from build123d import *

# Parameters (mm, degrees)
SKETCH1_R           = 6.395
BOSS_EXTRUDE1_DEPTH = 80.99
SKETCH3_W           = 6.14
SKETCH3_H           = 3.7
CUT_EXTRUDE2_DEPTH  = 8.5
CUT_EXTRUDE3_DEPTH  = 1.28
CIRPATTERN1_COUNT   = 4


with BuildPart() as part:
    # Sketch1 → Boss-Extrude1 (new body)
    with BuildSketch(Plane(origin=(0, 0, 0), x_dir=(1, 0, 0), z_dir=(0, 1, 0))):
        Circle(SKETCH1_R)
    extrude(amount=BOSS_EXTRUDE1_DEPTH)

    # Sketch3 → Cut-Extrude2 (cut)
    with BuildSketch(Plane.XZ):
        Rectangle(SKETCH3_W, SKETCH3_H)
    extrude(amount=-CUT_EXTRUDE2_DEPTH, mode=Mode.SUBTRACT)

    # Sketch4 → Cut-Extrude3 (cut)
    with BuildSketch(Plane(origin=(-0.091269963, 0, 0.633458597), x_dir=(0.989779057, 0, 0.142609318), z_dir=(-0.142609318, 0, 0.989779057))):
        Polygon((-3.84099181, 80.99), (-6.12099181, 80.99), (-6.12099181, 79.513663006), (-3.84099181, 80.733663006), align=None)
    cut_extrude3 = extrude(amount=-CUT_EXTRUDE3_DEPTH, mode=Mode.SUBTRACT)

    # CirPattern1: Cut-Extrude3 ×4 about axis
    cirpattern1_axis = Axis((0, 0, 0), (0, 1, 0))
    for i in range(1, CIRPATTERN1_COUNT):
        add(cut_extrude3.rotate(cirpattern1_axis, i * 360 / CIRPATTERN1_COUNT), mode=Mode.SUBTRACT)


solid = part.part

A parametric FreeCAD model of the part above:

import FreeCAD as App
import Part
import Sketcher
from FreeCAD import Vector
Q = App.Units.Quantity


def add_polygon(sketch, points):
    """Adds a closed chain of lines whose ends are joined by coincident constraints."""
    first, n = sketch.GeometryCount, len(points)
    for a, b in zip(points, points[1:] + points[:1]):
        sketch.addGeometry(Part.LineSegment(App.Vector(*a, 0), App.Vector(*b, 0)), False)
    for i in range(n):
        sketch.addConstraint(Sketcher.Constraint("Coincident", first + i, 2, first + (i + 1) % n, 1))

doc = App.newDocument("Part")
body = doc.addObject("PartDesign::Body", "Body")

# Sketch on XZ plane
sketch1 = body.newObject("Sketcher::SketchObject", "Sketch")
sketch1.AttachmentSupport = (doc.getObject("XZ_Plane"), [""])
sketch1.MapMode = "FlatFace"
sketch1.addGeometry(Part.Circle(Vector(0, 0, 0), Vector(0, 0, 1), 6), False)
sketch1.addConstraint(Sketcher.Constraint("Coincident", 0, 3, -1, 1))
sketch1.addConstraint(Sketcher.Constraint("Diameter", 0, Q("12.79 mm")))
pad1 = body.newObject("PartDesign::Pad", "Pad")
pad1.Profile = sketch1
pad1.Length = 80.99
pad1.Reversed = True

# Sketch on XZ plane
sketch2 = body.newObject("Sketcher::SketchObject", "Sketch001")
sketch2.AttachmentSupport = (doc.getObject("XZ_Plane"), [""])
sketch2.MapMode = "FlatFace"
add_polygon(sketch2, [(-3.1, 1.9), (-3.1, -1.9), (3.1, -1.9), (3.1, 1.9)])  # lines 0-3
sketch2.addConstraint(Sketcher.Constraint("Vertical", 0))
sketch2.addConstraint(Sketcher.Constraint("Horizontal", 1))
sketch2.addConstraint(Sketcher.Constraint("Vertical", 2))
sketch2.addConstraint(Sketcher.Constraint("Horizontal", 3))
sketch2.addConstraint(Sketcher.Constraint("Symmetric", 0, 2, 2, 2, -1, 1))
sketch2.addConstraint(Sketcher.Constraint("DistanceY", 0, 2, 0, 1, Q("3.7 mm")))
sketch2.addConstraint(Sketcher.Constraint("DistanceX", 1, 1, 1, 2, Q("6.14 mm")))
pocket1 = body.newObject("PartDesign::Pocket", "Pocket")
pocket1.Profile = sketch2
pocket1.Length = 8.5

# Sketch on an angled plane
sketch3 = body.newObject("Sketcher::SketchObject", "Sketch002")
sketch3.Placement = App.Placement(Vector(-0.09127, 0, 0.633459), App.Rotation(Vector(0.989779057, 0, 0.142609318), Vector(0, 0.999999999, 0), Vector(-0.142609318, 0, 0.989779057), "ZXY"))
add_polygon(sketch3, [(-3.84, 80.99), (-6.12, 80.99), (-6.12, 79.51), (-3.84, 80.73)])  # lines 0-3
sketch3.addConstraint(Sketcher.Constraint("Horizontal", 0))
sketch3.addConstraint(Sketcher.Constraint("Vertical", 1))
sketch3.addConstraint(Sketcher.Constraint("Vertical", 3))
sketch3.addConstraint(Sketcher.Constraint("DistanceX", 0, 2, 0, 1, Q("2.28 mm")))
sketch3.addConstraint(Sketcher.Constraint("DistanceY", -1, 1, 0, 2, Q("80.99 mm")))
sketch3.addConstraint(Sketcher.Constraint("DistanceY", 1, 2, 2, 2, Q("1.22 mm")))
sketch3.addConstraint(Sketcher.Constraint("DistanceY", 1, 2, 1, 1, Q("1.476337 mm")))
sketch3.addConstraint(Sketcher.Constraint("DistanceX", 0, 2, -1, 1, Q("6.120992 mm")))
pocket2 = body.newObject("PartDesign::Pocket", "Pocket001")
pocket2.Profile = sketch3
pocket2.Length = 1.28
doc.recompute()

polarpattern = body.newObject("PartDesign::PolarPattern", "PolarPattern")
polarpattern.Originals = [pocket2]
polarpattern.Axis = (doc.getObject("Y_Axis"), [""])
polarpattern.Angle = 360
polarpattern.Occurrences = 4
body.Tip = polarpattern

doc.recompute()
